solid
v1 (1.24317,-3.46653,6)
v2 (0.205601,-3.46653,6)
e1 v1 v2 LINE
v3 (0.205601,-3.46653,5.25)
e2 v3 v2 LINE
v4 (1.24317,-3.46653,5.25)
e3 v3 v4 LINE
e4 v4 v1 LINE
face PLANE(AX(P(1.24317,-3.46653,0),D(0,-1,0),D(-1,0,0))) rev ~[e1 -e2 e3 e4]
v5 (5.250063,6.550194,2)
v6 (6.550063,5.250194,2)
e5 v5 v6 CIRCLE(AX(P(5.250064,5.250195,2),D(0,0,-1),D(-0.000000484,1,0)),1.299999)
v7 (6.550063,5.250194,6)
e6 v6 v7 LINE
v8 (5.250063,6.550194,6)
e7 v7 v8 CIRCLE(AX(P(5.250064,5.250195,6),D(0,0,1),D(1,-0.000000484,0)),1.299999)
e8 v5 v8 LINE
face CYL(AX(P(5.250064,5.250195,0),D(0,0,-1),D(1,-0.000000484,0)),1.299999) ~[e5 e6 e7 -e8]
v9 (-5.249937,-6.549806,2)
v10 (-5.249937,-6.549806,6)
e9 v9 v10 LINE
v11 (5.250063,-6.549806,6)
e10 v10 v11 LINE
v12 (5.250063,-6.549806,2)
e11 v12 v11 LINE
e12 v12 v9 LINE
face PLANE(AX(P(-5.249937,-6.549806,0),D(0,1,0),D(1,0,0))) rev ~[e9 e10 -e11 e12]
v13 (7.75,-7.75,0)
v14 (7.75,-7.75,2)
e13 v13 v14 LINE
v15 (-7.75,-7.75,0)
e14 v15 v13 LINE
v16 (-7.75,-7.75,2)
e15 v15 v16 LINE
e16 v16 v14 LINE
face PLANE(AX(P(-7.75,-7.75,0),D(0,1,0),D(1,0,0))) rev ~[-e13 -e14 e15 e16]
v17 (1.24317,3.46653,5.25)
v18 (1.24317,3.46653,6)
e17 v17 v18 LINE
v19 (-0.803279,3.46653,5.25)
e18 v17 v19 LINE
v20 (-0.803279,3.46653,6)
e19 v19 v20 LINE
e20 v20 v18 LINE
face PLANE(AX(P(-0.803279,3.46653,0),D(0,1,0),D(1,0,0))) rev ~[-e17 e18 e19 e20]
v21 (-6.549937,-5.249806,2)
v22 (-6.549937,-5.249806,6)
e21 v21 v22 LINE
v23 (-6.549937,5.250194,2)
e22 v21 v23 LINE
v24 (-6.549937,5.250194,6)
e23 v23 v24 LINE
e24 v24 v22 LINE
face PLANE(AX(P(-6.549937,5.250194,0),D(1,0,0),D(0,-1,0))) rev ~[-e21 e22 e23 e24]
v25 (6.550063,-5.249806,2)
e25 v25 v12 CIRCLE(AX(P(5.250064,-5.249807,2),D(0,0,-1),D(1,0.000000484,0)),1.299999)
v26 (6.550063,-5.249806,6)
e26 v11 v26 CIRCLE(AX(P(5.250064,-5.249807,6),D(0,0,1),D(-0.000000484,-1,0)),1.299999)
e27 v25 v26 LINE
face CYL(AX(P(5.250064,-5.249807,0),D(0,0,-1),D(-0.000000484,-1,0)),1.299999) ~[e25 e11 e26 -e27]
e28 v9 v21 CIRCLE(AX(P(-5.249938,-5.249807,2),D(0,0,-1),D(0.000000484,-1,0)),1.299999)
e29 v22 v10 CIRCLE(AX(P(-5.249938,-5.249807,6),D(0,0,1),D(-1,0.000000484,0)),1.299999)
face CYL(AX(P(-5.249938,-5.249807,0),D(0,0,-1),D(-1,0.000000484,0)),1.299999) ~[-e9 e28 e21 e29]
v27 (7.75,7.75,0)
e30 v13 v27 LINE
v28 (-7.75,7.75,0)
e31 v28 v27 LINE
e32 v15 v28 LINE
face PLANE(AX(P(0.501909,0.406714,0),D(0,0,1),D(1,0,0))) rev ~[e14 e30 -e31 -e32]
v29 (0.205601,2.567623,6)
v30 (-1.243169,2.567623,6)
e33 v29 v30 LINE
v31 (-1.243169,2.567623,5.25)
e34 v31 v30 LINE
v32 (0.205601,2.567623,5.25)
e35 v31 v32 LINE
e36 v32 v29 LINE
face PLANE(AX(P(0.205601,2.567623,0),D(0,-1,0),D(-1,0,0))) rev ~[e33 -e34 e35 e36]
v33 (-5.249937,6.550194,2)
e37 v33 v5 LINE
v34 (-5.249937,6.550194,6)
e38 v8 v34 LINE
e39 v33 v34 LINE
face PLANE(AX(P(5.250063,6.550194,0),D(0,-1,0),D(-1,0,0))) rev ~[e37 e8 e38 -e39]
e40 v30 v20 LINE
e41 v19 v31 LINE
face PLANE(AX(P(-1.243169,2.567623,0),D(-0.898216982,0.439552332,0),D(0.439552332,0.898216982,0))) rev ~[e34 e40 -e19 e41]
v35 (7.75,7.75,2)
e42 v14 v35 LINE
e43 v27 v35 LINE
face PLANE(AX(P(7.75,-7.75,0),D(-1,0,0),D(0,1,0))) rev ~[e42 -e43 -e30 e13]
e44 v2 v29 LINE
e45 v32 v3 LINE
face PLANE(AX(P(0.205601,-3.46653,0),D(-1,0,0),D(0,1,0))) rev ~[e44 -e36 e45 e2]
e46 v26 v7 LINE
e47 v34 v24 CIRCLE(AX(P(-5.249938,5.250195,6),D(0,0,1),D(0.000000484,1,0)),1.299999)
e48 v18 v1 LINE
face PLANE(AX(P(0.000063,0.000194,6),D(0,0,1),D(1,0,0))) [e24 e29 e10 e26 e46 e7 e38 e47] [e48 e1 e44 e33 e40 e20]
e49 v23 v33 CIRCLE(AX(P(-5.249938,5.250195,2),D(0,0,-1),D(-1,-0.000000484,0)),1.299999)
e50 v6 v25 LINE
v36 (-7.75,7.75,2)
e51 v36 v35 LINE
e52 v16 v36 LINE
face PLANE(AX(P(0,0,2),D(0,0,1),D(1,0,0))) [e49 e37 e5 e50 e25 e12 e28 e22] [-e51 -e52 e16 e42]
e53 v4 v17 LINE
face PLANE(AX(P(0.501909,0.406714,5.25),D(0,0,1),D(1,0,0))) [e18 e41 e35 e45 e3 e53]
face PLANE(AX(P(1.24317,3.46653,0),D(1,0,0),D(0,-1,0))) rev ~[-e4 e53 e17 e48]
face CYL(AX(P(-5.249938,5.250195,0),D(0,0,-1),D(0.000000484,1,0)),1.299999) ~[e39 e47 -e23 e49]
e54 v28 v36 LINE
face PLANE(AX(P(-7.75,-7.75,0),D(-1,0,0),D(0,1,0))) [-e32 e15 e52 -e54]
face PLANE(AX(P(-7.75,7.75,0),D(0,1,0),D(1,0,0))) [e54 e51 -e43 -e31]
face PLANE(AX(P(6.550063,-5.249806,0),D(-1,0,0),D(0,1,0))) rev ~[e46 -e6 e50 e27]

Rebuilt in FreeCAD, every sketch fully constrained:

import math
import FreeCAD as App
import Part
import Sketcher
from FreeCAD import Vector


def add_polygon(sketch, points):
    """Adds a closed chain of lines whose ends are joined by coincident constraints."""
    first, n = sketch.GeometryCount, len(points)
    for a, b in zip(points, points[1:] + points[:1]):
        sketch.addGeometry(Part.LineSegment(App.Vector(*a, 0), App.Vector(*b, 0)), False)
    for i in range(n):
        sketch.addConstraint(Sketcher.Constraint("Coincident", first + i, 2, first + (i + 1) % n, 1))

doc = App.newDocument("Part")
body = doc.addObject("PartDesign::Body", "Body")

# Sketch on XY plane
sketch1 = body.newObject("Sketcher::SketchObject", "Sketch")
sketch1.AttachmentSupport = (doc.getObject("XY_Plane"), [""])
sketch1.MapMode = "FlatFace"
add_polygon(sketch1, [(-7.8, 7.8), (-7.8, -7.8), (7.8, -7.8), (7.8, 7.8)])  # lines 0-3
sketch1.addGeometry(Part.ArcOfCircle(Part.Circle(Vector(-5.2, -5.2, 0), Vector(0, 0, 1), 1.3), math.radians(180), math.radians(270)), False)  # 4
sketch1.addGeometry(Part.LineSegment(Vector(-6.5, -5.2, 0), Vector(-6.5, 5.3, 0)), False)  # 5
sketch1.addGeometry(Part.ArcOfCircle(Part.Circle(Vector(-5.2, 5.3, 0), Vector(0, 0, 1), 1.3), math.radians(90), math.radians(180)), False)  # 6
sketch1.addGeometry(Part.LineSegment(Vector(-5.2, 6.6, 0), Vector(5.3, 6.6, 0)), False)  # 7
sketch1.addGeometry(Part.ArcOfCircle(Part.Circle(Vector(5.3, 5.3, 0), Vector(0, 0, 1), 1.3), math.radians(0), math.radians(90)), False)  # 8
sketch1.addGeometry(Part.LineSegment(Vector(6.6, 5.3, 0), Vector(6.6, -5.2, 0)), False)  # 9
sketch1.addGeometry(Part.ArcOfCircle(Part.Circle(Vector(5.3, -5.2, 0), Vector(0, 0, 1), 1.3), math.radians(-90), math.radians(0)), False)  # 10
sketch1.addGeometry(Part.LineSegment(Vector(5.3, -6.5, 0), Vector(-5.2, -6.5, 0)), False)  # 11
sketch1.addConstraint(Sketcher.Constraint("Tangent", 4, 1, 5, 1))
sketch1.addConstraint(Sketcher.Constraint("Tangent", 5, 2, 6, 2))
sketch1.addConstraint(Sketcher.Constraint("Tangent", 6, 1, 7, 1))
sketch1.addConstraint(Sketcher.Constraint("Tangent", 7, 2, 8, 2))
sketch1.addConstraint(Sketcher.Constraint("Tangent", 8, 1, 9, 1))
sketch1.addConstraint(Sketcher.Constraint("Tangent", 9, 2, 10, 2))
sketch1.addConstraint(Sketcher.Constraint("Tangent", 10, 1, 11, 1))
sketch1.addConstraint(Sketcher.Constraint("Tangent", 11, 2, 4, 2))
sketch1.addConstraint(Sketcher.Constraint("Vertical", 0))
sketch1.addConstraint(Sketcher.Constraint("Horizontal", 1))
sketch1.addConstraint(Sketcher.Constraint("Vertical", 2))
sketch1.addConstraint(Sketcher.Constraint("Horizontal", 3))
sketch1.addConstraint(Sketcher.Constraint("Vertical", 5))
sketch1.addConstraint(Sketcher.Constraint("Horizontal", 7))
sketch1.addConstraint(Sketcher.Constraint("Vertical", 9))
sketch1.addConstraint(Sketcher.Constraint("Horizontal", 11))
sketch1.addConstraint(Sketcher.Constraint("Equal", 4, 6))
sketch1.addConstraint(Sketcher.Constraint("Equal", 6, 8))
sketch1.addConstraint(Sketcher.Constraint("Equal", 8, 10))
sketch1.addConstraint(Sketcher.Constraint("Symmetric", 0, 2, 2, 2, -1, 1))
sketch1.addConstraint(Sketcher.Constraint("Equal", 3, 0))
sketch1.addConstraint(Sketcher.Constraint("Equal", 11, 5))
sketch1.addConstraint(Sketcher.Constraint("Radius", 4, 1.299999))
sketch1.addConstraint(Sketcher.Constraint("DistanceX", 1, 1, 1, 2, 15.5))
sketch1.addConstraint(Sketcher.Constraint("DistanceX", 7, 1, 7, 2, 10.5))
sketch1.addConstraint(Sketcher.Constraint("DistanceX", 4, 3, -1, 1, 5.249938))
sketch1.addConstraint(Sketcher.Constraint("DistanceY", 4, 3, -1, 1, 5.249807))
pad1 = body.newObject("PartDesign::Pad", "Pad")
pad1.Profile = sketch1
pad1.Length = 2

# Sketch on XY plane
sketch2 = body.newObject("Sketcher::SketchObject", "Sketch001")
sketch2.AttachmentSupport = (doc.getObject("XY_Plane"), [""])
sketch2.MapMode = "FlatFace"
sketch2.addGeometry(Part.ArcOfCircle(Part.Circle(Vector(-5.2, 5.3, 0), Vector(0, 0, 1), 1.3), math.radians(90), math.radians(180)), False)  # 0
sketch2.addGeometry(Part.LineSegment(Vector(-6.5, 5.3, 0), Vector(-6.5, -5.2, 0)), False)  # 1
sketch2.addGeometry(Part.ArcOfCircle(Part.Circle(Vector(-5.2, -5.2, 0), Vector(0, 0, 1), 1.3), math.radians(180), math.radians(270)), False)  # 2
sketch2.addGeometry(Part.LineSegment(Vector(-5.2, -6.5, 0), Vector(5.3, -6.5, 0)), False)  # 3
sketch2.addGeometry(Part.ArcOfCircle(Part.Circle(Vector(5.3, -5.2, 0), Vector(0, 0, 1), 1.3), math.radians(-90), math.radians(0)), False)  # 4
sketch2.addGeometry(Part.LineSegment(Vector(6.6, -5.2, 0), Vector(6.6, 5.3, 0)), False)  # 5
sketch2.addGeometry(Part.ArcOfCircle(Part.Circle(Vector(5.3, 5.3, 0), Vector(0, 0, 1), 1.3), math.radians(0), math.radians(90)), False)  # 6
sketch2.addGeometry(Part.LineSegment(Vector(5.3, 6.6, 0), Vector(-5.2, 6.6, 0)), False)  # 7
add_polygon(sketch2, [(1.2, 3.5), (1.2, -3.5), (0.2, -3.5), (0.2, 2.6), (-1.2, 2.6), (-0.8, 3.5)])  # lines 8-13
sketch2.addConstraint(Sketcher.Constraint("Tangent", 0, 2, 1, 1))
sketch2.addConstraint(Sketcher.Constraint("Tangent", 1, 2, 2, 1))
sketch2.addConstraint(Sketcher.Constraint("Tangent", 2, 2, 3, 1))
sketch2.addConstraint(Sketcher.Constraint("Tangent", 3, 2, 4, 1))
sketch2.addConstraint(Sketcher.Constraint("Tangent", 4, 2, 5, 1))
sketch2.addConstraint(Sketcher.Constraint("Tangent", 5, 2, 6, 1))
sketch2.addConstraint(Sketcher.Constraint("Tangent", 6, 2, 7, 1))
sketch2.addConstraint(Sketcher.Constraint("Tangent", 7, 2, 0, 1))
sketch2.addConstraint(Sketcher.Constraint("Vertical", 1))
sketch2.addConstraint(Sketcher.Constraint("Horizontal", 3))
sketch2.addConstraint(Sketcher.Constraint("Vertical", 5))
sketch2.addConstraint(Sketcher.Constraint("Horizontal", 7))
sketch2.addConstraint(Sketcher.Constraint("Vertical", 8))
sketch2.addConstraint(Sketcher.Constraint("Horizontal", 9))
sketch2.addConstraint(Sketcher.Constraint("Vertical", 10))
sketch2.addConstraint(Sketcher.Constraint("Horizontal", 11))
sketch2.addConstraint(Sketcher.Constraint("Horizontal", 13))
sketch2.addConstraint(Sketcher.Constraint("Equal", 0, 2))
sketch2.addConstraint(Sketcher.Constraint("Equal", 2, 4))
sketch2.addConstraint(Sketcher.Constraint("Equal", 4, 6))
sketch2.addConstraint(Sketcher.Constraint("Equal", 7, 1))
sketch2.addConstraint(Sketcher.Constraint("Radius", 0, 1.299999))
sketch2.addConstraint(Sketcher.Constraint("DistanceX", 3, 1, 3, 2, 10.5))
sketch2.addConstraint(Sketcher.Constraint("DistanceX", 9, 2, 9, 1, 1.037569))
sketch2.addConstraint(Sketcher.Constraint("DistanceX", 11, 2, 11, 1, 1.44877))
sketch2.addConstraint(Sketcher.Constraint("DistanceX", 13, 1, 13, 2, 2.046449))
sketch2.addConstraint(Sketcher.Constraint("DistanceY", 8, 2, 8, 1, 6.93306))
sketch2.addConstraint(Sketcher.Constraint("DistanceX", -1, 1, 9, 2, 0.205601))
sketch2.addConstraint(Sketcher.Constraint("Distance", 12, 1.000768))
sketch2.addConstraint(Sketcher.Constraint("DistanceY", 8, 2, -1, 1, 3.46653))
sketch2.addConstraint(Sketcher.Constraint("DistanceX", 2, 3, 9, 2, 5.455539))
sketch2.addConstraint(Sketcher.Constraint("DistanceY", 10, 2, 6, 3, 2.682572))
pad2 = body.newObject("PartDesign::Pad", "Pad001")
pad2.Profile = sketch2
pad2.Length = 6

# Sketch on XY plane
sketch3 = body.newObject("Sketcher::SketchObject", "Sketch002")
sketch3.AttachmentSupport = (doc.getObject("XY_Plane"), [""])
sketch3.MapMode = "FlatFace"
add_polygon(sketch3, [(0.2, 2.6), (0.2, -3.5), (1.2, -3.5), (1.2, 3.5), (-0.8, 3.5), (-1.2, 2.6)])  # lines 0-5
sketch3.addConstraint(Sketcher.Constraint("Vertical", 0))
sketch3.addConstraint(Sketcher.Constraint("Horizontal", 1))
sketch3.addConstraint(Sketcher.Constraint("Vertical", 2))
sketch3.addConstraint(Sketcher.Constraint("Horizontal", 3))
sketch3.addConstraint(Sketcher.Constraint("Horizontal", 5))
sketch3.addConstraint(Sketcher.Constraint("DistanceX", 1, 1, 1, 2, 1.037569))
sketch3.addConstraint(Sketcher.Constraint("DistanceX", 3, 2, 3, 1, 2.046449))
sketch3.addConstraint(Sketcher.Constraint("DistanceX", 5, 1, 5, 2, 1.44877))
sketch3.addConstraint(Sketcher.Constraint("DistanceY", 2, 1, 2, 2, 6.93306))
sketch3.addConstraint(Sketcher.Constraint("DistanceX", -1, 1, 0, 2, 0.205601))
sketch3.addConstraint(Sketcher.Constraint("Distance", 4, 1.000768))
sketch3.addConstraint(Sketcher.Constraint("DistanceY", 0, 2, -1, 1, 3.46653))
pad3 = body.newObject("PartDesign::Pad", "Pad002")
pad3.Profile = sketch3
pad3.Length = 5.25

doc.recompute()
